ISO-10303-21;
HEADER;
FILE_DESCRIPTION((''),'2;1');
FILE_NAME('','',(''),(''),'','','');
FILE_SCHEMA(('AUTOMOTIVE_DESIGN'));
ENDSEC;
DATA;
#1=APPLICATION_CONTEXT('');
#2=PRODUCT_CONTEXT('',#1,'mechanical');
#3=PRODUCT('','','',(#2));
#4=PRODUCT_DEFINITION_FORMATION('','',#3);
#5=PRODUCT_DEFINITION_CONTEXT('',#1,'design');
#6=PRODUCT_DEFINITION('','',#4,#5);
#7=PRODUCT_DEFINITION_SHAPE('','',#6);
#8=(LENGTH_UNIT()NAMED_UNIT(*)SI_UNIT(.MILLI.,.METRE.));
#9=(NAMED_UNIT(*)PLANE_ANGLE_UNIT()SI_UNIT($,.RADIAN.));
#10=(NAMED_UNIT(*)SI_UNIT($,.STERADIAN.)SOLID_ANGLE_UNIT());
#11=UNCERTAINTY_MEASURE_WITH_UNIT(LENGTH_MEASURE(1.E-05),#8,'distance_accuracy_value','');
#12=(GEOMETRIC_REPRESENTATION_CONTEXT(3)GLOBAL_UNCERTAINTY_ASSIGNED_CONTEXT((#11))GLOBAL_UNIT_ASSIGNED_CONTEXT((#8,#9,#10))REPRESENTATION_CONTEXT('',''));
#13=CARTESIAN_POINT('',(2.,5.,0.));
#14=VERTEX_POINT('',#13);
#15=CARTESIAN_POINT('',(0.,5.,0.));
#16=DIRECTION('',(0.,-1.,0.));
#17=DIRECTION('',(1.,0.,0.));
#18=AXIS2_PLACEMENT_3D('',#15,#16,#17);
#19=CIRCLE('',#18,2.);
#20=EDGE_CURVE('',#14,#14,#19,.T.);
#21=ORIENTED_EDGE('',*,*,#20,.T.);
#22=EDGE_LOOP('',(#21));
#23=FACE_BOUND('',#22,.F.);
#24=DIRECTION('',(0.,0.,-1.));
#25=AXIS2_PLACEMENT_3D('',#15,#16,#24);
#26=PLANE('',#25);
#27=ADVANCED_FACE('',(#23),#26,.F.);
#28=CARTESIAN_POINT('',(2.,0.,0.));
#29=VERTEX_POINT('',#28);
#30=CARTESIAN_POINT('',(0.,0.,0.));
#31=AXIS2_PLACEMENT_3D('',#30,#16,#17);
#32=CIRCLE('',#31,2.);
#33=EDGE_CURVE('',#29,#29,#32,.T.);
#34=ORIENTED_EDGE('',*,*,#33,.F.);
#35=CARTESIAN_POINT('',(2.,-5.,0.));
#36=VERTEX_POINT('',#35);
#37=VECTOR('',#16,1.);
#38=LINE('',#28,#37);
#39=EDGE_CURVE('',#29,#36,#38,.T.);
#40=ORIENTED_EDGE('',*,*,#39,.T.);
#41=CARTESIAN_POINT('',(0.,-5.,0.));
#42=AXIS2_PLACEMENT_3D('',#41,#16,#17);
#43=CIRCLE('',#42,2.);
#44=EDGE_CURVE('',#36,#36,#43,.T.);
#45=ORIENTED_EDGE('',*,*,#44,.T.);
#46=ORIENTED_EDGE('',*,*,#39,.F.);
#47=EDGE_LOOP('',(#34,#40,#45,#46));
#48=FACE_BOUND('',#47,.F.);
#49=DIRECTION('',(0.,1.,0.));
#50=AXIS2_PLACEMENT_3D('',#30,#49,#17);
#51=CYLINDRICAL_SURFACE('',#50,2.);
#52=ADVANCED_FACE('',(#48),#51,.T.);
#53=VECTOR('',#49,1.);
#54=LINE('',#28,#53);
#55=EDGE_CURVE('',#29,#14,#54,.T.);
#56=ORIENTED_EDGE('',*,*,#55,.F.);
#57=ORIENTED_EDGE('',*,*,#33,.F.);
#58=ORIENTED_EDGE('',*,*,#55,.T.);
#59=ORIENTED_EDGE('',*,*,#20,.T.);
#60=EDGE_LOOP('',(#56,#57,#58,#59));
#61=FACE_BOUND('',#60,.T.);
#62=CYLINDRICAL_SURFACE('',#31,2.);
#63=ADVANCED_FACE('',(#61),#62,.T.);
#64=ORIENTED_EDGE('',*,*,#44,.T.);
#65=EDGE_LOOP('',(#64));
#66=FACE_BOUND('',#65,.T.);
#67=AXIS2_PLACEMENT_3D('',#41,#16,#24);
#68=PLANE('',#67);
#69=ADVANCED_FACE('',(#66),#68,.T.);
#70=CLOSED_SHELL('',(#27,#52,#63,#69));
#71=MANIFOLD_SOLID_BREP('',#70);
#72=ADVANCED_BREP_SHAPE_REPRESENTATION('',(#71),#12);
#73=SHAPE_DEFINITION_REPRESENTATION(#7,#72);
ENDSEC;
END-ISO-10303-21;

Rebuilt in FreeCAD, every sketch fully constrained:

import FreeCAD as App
import Part
import Sketcher

doc = App.newDocument("Part")
body = doc.addObject("PartDesign::Body", "Body")

# Sketch on XZ plane
sketch1 = doc.addObject("Sketcher::SketchObject", "Sketch")
body.addObject(sketch1)
sketch1.AttachmentSupport = (doc.XZ_Plane, [""])
sketch1.MapMode = "FlatFace"
sketch1.addGeometry(Part.Circle(App.Vector(0, 0, 0), App.Vector(0, 0, 1), 2), False)
sketch1.addConstraint([
    Sketcher.Constraint("Coincident", 0, 3, -1, 1),
    Sketcher.Constraint("Diameter", 0, 4.0),
])
pad1 = doc.addObject("PartDesign::Pad", "Pad")
body.addObject(pad1)
pad1.Profile = sketch1
pad1.Length = 10
pad1.Midplane = True

doc.recompute()
